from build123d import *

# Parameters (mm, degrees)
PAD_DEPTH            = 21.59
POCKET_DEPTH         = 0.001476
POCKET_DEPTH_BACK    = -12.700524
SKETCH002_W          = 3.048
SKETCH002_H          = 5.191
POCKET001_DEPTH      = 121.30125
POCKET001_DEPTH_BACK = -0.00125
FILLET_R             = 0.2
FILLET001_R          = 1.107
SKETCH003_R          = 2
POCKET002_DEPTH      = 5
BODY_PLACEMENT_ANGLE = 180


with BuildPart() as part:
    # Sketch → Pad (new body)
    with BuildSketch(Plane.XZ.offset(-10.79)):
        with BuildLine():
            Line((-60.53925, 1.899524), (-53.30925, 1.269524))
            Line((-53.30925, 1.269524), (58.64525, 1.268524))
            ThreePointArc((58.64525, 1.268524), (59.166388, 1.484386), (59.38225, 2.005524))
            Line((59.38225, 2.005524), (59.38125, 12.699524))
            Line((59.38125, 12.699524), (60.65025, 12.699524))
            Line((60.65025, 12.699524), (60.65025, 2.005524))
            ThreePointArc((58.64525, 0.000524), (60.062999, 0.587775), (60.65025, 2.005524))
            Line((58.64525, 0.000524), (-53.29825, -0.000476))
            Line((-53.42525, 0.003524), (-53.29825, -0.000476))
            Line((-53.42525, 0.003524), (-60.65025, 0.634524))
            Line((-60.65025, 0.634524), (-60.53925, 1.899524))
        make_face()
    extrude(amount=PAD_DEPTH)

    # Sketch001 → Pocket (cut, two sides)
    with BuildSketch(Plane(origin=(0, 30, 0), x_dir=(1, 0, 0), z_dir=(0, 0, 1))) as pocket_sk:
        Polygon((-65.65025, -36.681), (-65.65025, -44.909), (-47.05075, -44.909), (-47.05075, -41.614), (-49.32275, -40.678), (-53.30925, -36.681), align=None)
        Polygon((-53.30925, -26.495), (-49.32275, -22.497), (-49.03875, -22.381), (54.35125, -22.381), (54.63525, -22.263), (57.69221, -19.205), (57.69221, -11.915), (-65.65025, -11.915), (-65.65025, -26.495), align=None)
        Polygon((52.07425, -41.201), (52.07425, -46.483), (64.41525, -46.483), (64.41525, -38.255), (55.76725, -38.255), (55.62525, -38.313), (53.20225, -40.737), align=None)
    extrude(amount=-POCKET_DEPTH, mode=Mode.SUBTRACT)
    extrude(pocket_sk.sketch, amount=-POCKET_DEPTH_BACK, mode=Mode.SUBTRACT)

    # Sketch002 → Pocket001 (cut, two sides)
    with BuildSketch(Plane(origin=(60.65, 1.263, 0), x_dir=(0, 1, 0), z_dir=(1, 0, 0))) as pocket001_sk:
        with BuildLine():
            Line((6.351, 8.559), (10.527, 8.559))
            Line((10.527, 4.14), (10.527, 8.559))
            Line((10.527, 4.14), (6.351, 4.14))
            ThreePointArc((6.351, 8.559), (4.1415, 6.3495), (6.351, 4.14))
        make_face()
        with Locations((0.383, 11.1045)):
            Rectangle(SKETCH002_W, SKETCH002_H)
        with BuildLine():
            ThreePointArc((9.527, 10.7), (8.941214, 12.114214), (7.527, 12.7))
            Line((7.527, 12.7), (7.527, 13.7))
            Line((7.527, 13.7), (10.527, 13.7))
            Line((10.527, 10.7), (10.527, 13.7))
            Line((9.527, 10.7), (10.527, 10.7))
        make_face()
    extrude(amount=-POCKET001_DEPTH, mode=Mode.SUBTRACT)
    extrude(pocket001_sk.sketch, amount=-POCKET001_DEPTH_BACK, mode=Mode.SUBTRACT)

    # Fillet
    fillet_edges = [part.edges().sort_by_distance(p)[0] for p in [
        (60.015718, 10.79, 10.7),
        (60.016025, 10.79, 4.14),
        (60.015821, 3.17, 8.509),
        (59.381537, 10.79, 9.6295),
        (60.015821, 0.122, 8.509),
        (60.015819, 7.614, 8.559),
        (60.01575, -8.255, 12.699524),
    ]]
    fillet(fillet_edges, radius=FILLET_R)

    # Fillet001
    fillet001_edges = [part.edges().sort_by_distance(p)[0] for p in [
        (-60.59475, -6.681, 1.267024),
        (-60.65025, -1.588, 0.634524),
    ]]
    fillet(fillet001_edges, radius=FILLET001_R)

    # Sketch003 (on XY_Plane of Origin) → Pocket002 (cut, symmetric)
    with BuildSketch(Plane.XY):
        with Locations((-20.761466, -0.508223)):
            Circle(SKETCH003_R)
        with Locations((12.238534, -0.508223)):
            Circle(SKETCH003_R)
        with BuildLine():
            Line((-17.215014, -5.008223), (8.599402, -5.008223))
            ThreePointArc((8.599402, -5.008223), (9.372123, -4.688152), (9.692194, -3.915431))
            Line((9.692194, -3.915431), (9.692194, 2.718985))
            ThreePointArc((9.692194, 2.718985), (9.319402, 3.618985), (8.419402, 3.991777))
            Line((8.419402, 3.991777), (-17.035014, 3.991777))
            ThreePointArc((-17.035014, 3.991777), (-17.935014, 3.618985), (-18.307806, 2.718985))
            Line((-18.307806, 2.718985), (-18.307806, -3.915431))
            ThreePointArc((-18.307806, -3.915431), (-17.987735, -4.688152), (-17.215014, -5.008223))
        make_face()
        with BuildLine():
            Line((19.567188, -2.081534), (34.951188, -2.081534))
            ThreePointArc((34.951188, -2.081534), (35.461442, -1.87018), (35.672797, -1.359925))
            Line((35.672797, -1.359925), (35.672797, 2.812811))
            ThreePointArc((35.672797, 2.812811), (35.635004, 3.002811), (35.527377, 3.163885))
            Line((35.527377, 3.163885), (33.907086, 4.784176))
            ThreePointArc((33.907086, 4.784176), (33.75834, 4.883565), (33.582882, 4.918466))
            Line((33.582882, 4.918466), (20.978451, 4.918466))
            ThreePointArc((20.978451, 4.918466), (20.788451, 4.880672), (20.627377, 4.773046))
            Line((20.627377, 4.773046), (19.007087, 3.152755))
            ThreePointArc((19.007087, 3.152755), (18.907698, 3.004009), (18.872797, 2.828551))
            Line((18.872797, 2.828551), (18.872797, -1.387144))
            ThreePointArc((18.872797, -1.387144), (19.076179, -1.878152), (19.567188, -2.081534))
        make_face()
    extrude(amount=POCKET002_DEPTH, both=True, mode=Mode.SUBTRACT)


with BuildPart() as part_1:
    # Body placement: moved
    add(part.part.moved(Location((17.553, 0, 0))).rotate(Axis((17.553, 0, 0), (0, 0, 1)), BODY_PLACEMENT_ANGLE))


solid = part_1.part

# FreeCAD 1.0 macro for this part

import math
import FreeCAD as App
import Part
import Sketcher
Q = App.Units.Quantity


def edges_at(feature, points):
    """Names of the edges that pass closest to the given points."""
    edges = feature.Shape.Edges
    near = lambda p: min(range(len(edges)), key=lambda i: edges[i].distToShape(Part.Vertex(*p))[0])
    return sorted({f"Edge{near(p) + 1}" for p in points})

doc = App.newDocument("Part")
body = doc.addObject("PartDesign::Body", "Body")

sketch1 = doc.addObject("Sketcher::SketchObject", "Sketch")
body.addObject(sketch1)
sketch1.AttachmentSupport = (doc.XZ_Plane, [""])
sketch1.MapMode = "FlatFace"
sketch1.AttachmentOffset = App.Placement(App.Vector(0, 0, -10.79), App.Rotation())
sketch1.addGeometry(Part.LineSegment(App.Vector(-53.31, 1.27, 0), App.Vector(-60.54, 1.9, 0)), False)
sketch1.addGeometry(Part.LineSegment(App.Vector(-60.54, 1.9, 0), App.Vector(-60.65, 0.63, 0)), False)
sketch1.addGeometry(Part.LineSegment(App.Vector(-60.65, 0.63, 0), App.Vector(-53.43, 0, 0)), False)
sketch1.addGeometry(Part.LineSegment(App.Vector(-53.43, 0, 0), App.Vector(-53.3, 0, 0)), False)
sketch1.addGeometry(Part.LineSegment(App.Vector(-53.3, 0, 0), App.Vector(58.65, 0, 0)), False)
sketch1.addGeometry(Part.ArcOfCircle(Part.Circle(App.Vector(58.65, 2.01, 0), App.Vector(0, 0, 1), 2.01), math.radians(-90), math.radians(0)), False)
sketch1.addGeometry(Part.LineSegment(App.Vector(60.65, 2.01, 0), App.Vector(60.65, 12.7, 0)), False)
sketch1.addGeometry(Part.LineSegment(App.Vector(60.65, 12.7, 0), App.Vector(59.38, 12.7, 0)), False)
sketch1.addGeometry(Part.LineSegment(App.Vector(59.38, 12.7, 0), App.Vector(59.38, 2.01, 0)), False)
sketch1.addGeometry(Part.ArcOfCircle(Part.Circle(App.Vector(58.65, 2.01, 0), App.Vector(0, 0, 1), 0.74), math.radians(-90), math.radians(0)), False)
sketch1.addGeometry(Part.LineSegment(App.Vector(58.65, 1.27, 0), App.Vector(-53.31, 1.27, 0)), False)
sketch1.addConstraint(Sketcher.Constraint("Coincident", 0, 2, 1, 1))
sketch1.addConstraint(Sketcher.Constraint("Coincident", 1, 2, 2, 1))
sketch1.addConstraint(Sketcher.Constraint("Coincident", 2, 2, 3, 1))
sketch1.addConstraint(Sketcher.Constraint("Coincident", 3, 2, 4, 1))
sketch1.addConstraint(Sketcher.Constraint("Coincident", 4, 2, 5, 1))
sketch1.addConstraint(Sketcher.Constraint("Tangent", 5, 2, 6, 1))
sketch1.addConstraint(Sketcher.Constraint("Coincident", 6, 2, 7, 1))
sketch1.addConstraint(Sketcher.Constraint("Coincident", 7, 2, 8, 1))
sketch1.addConstraint(Sketcher.Constraint("Coincident", 8, 2, 9, 2))
sketch1.addConstraint(Sketcher.Constraint("Coincident", 9, 1, 10, 1))
sketch1.addConstraint(Sketcher.Constraint("Coincident", 10, 2, 0, 1))
sketch1.addConstraint(Sketcher.Constraint("Vertical", 6))
sketch1.addConstraint(Sketcher.Constraint("Horizontal", 7))
sketch1.addConstraint(Sketcher.Constraint("Coincident", 9, 3, 5, 3))
sketch1.addConstraint(Sketcher.Constraint("Horizontal", 5, 2, 8, 2))
sketch1.addConstraint(Sketcher.Constraint("Vertical", 9, 3, 4, 2))
sketch1.addConstraint(Sketcher.Constraint("Vertical", 4, 2, 9, 1))
sketch1.addConstraint(Sketcher.Constraint("Radius", 5, 2.005))
sketch1.addConstraint(Sketcher.Constraint("Radius", 9, 0.736999))
sketch1.addConstraint(Sketcher.Constraint("Angle", 0, Q("175.02 deg")))
sketch1.addConstraint(Sketcher.Constraint("DistanceY", 3, 2, 0, 2, 1.9))
sketch1.addConstraint(Sketcher.Constraint("DistanceY", 3, 2, 6, 2, 12.7))
sketch1.addConstraint(Sketcher.Constraint("DistanceX", 7, 2, 7, 1, 1.269))
sketch1.addConstraint(Sketcher.Constraint("DistanceY", 6, 1, 6, 2, 10.694))
sketch1.addConstraint(Sketcher.Constraint("DistanceY", 3, 2, 10, 2, 1.27))
sketch1.addConstraint(Sketcher.Constraint("DistanceX", 1, 2, 0, 2, 0.111))
sketch1.addConstraint(Sketcher.Constraint("DistanceY", 1, 2, 0, 2, 1.265))
sketch1.addConstraint(Sketcher.Constraint("DistanceX", 1, 2, 2, 2, 7.225))
sketch1.addConstraint(Sketcher.Constraint("DistanceY", 2, 2, 1, 2, 0.631))
sketch1.addConstraint(Sketcher.Constraint("DistanceX", 2, 2, 3, 2, 0.127))
sketch1.addConstraint(Sketcher.Constraint("Distance", 4, 111.9435))
sketch1.addConstraint(Sketcher.Constraint("DistanceX", -1, 1, 5, 3, 58.64525))
sketch1.addConstraint(Sketcher.Constraint("DistanceY", -1, 1, 5, 3, 2.005524))
pad1 = doc.addObject("PartDesign::Pad", "Pad")
body.addObject(pad1)
pad1.Profile = sketch1
pad1.Length = 21.59

sketch2 = doc.addObject("Sketcher::SketchObject", "Sketch001")
body.addObject(sketch2)
sketch2.AttachmentSupport = (doc.XY_Plane, [""])
sketch2.MapMode = "FlatFace"
sketch2.addGeometry(Part.LineSegment(App.Vector(-65.65, -6.68, 0), App.Vector(-65.65, -14.91, 0)), False)
sketch2.addGeometry(Part.LineSegment(App.Vector(-65.65, -14.91, 0), App.Vector(-47.05, -14.91, 0)), False)
sketch2.addGeometry(Part.LineSegment(App.Vector(-47.05, -14.91, 0), App.Vector(-47.05, -11.61, 0)), False)
sketch2.addGeometry(Part.LineSegment(App.Vector(-47.05, -11.61, 0), App.Vector(-49.32, -10.68, 0)), False)
sketch2.addGeometry(Part.LineSegment(App.Vector(-49.32, -10.68, 0), App.Vector(-53.31, -6.68, 0)), False)
sketch2.addGeometry(Part.LineSegment(App.Vector(-53.31, -6.68, 0), App.Vector(-65.65, -6.68, 0)), False)
sketch2.addGeometry(Part.LineSegment(App.Vector(-53.31, 3.5, 0), App.Vector(-49.32, 7.5, 0)), False)
sketch2.addGeometry(Part.LineSegment(App.Vector(-49.32, 7.5, 0), App.Vector(-49.04, 7.62, 0)), False)
sketch2.addGeometry(Part.LineSegment(App.Vector(-49.04, 7.62, 0), App.Vector(54.35, 7.62, 0)), False)
sketch2.addGeometry(Part.LineSegment(App.Vector(54.35, 7.62, 0), App.Vector(54.64, 7.74, 0)), False)
sketch2.addGeometry(Part.LineSegment(App.Vector(54.64, 7.74, 0), App.Vector(57.69, 10.79, 0)), False)
sketch2.addGeometry(Part.LineSegment(App.Vector(57.69, 10.79, 0), App.Vector(57.69, 18.09, 0)), False)
sketch2.addGeometry(Part.LineSegment(App.Vector(57.69, 18.09, 0), App.Vector(-65.65, 18.09, 0)), False)
sketch2.addGeometry(Part.LineSegment(App.Vector(-65.65, 18.09, 0), App.Vector(-65.65, 3.5, 0)), False)
sketch2.addGeometry(Part.LineSegment(App.Vector(-65.65, 3.5, 0), App.Vector(-53.31, 3.5, 0)), False)
sketch2.addGeometry(Part.LineSegment(App.Vector(52.07, -11.2, 0), App.Vector(52.07, -16.48, 0)), False)
sketch2.addGeometry(Part.LineSegment(App.Vector(52.07, -16.48, 0), App.Vector(64.42, -16.48, 0)), False)
sketch2.addGeometry(Part.LineSegment(App.Vector(64.42, -16.48, 0), App.Vector(64.42, -8.26, 0)), False)
sketch2.addGeometry(Part.LineSegment(App.Vector(64.42, -8.26, 0), App.Vector(55.77, -8.26, 0)), False)
sketch2.addGeometry(Part.LineSegment(App.Vector(55.77, -8.26, 0), App.Vector(55.63, -8.31, 0)), False)
sketch2.addGeometry(Part.LineSegment(App.Vector(55.63, -8.31, 0), App.Vector(53.2, -10.74, 0)), False)
sketch2.addGeometry(Part.LineSegment(App.Vector(53.2, -10.74, 0), App.Vector(52.07, -11.2, 0)), False)
sketch2.addConstraint(Sketcher.Constraint("Coincident", 0, 2, 1, 1))
sketch2.addConstraint(Sketcher.Constraint("Coincident", 1, 2, 2, 1))
sketch2.addConstraint(Sketcher.Constraint("Coincident", 2, 2, 3, 1))
sketch2.addConstraint(Sketcher.Constraint("Coincident", 3, 2, 4, 1))
sketch2.addConstraint(Sketcher.Constraint("Coincident", 4, 2, 5, 1))
sketch2.addConstraint(Sketcher.Constraint("Coincident", 5, 2, 0, 1))
sketch2.addConstraint(Sketcher.Constraint("Coincident", 6, 2, 7, 1))
sketch2.addConstraint(Sketcher.Constraint("Coincident", 7, 2, 8, 1))
sketch2.addConstraint(Sketcher.Constraint("Coincident", 8, 2, 9, 1))
sketch2.addConstraint(Sketcher.Constraint("Coincident", 9, 2, 10, 1))
sketch2.addConstraint(Sketcher.Constraint("Coincident", 10, 2, 11, 1))
sketch2.addConstraint(Sketcher.Constraint("Coincident", 11, 2, 12, 1))
sketch2.addConstraint(Sketcher.Constraint("Coincident", 12, 2, 13, 1))
sketch2.addConstraint(Sketcher.Constraint("Coincident", 13, 2, 14, 1))
sketch2.addConstraint(Sketcher.Constraint("Coincident", 14, 2, 6, 1))
sketch2.addConstraint(Sketcher.Constraint("Coincident", 15, 2, 16, 1))
sketch2.addConstraint(Sketcher.Constraint("Coincident", 16, 2, 17, 1))
sketch2.addConstraint(Sketcher.Constraint("Coincident", 17, 2, 18, 1))
sketch2.addConstraint(Sketcher.Constraint("Coincident", 18, 2, 19, 1))
sketch2.addConstraint(Sketcher.Constraint("Coincident", 19, 2, 20, 1))
sketch2.addConstraint(Sketcher.Constraint("Coincident", 20, 2, 21, 1))
sketch2.addConstraint(Sketcher.Constraint("Coincident", 21, 2, 15, 1))
sketch2.addConstraint(Sketcher.Constraint("Vertical", 0))
sketch2.addConstraint(Sketcher.Constraint("Horizontal", 1))
sketch2.addConstraint(Sketcher.Constraint("Vertical", 2))
sketch2.addConstraint(Sketcher.Constraint("Horizontal", 5))
sketch2.addConstraint(Sketcher.Constraint("Horizontal", 8))
sketch2.addConstraint(Sketcher.Constraint("Vertical", 11))
sketch2.addConstraint(Sketcher.Constraint("Horizontal", 12))
sketch2.addConstraint(Sketcher.Constraint("Vertical", 13))
sketch2.addConstraint(Sketcher.Constraint("Horizontal", 14))
sketch2.addConstraint(Sketcher.Constraint("Vertical", 15))
sketch2.addConstraint(Sketcher.Constraint("Horizontal", 16))
sketch2.addConstraint(Sketcher.Constraint("Vertical", 17))
sketch2.addConstraint(Sketcher.Constraint("Horizontal", 18))
sketch2.addConstraint(Sketcher.Constraint("Parallel", 7, 19))
sketch2.addConstraint(Sketcher.Constraint("Vertical", 3, 2, 6, 2))
sketch2.addConstraint(Sketcher.Constraint("Vertical", 5, 2, 12, 2))
sketch2.addConstraint(Sketcher.Constraint("Vertical", 4, 2, 14, 2))
sketch2.addConstraint(Sketcher.Constraint("Equal", 14, 16))
sketch2.addConstraint(Sketcher.Constraint("Equal", 0, 17))
sketch2.addConstraint(Sketcher.Constraint("DistanceX", 8, 1, 8, 2, 103.39))
sketch2.addConstraint(Sketcher.Constraint("DistanceY", 11, 1, 11, 2, 7.29))
sketch2.addConstraint(Sketcher.Constraint("DistanceY", 13, 2, 13, 1, 14.58))
sketch2.addConstraint(Sketcher.Constraint("DistanceY", 4, 2, 7, 2, 14.3))
sketch2.addConstraint(Sketcher.Constraint("DistanceX", 5, 2, 5, 1, 12.341))
sketch2.addConstraint(Sketcher.Constraint("DistanceX", 18, 2, 18, 1, 8.648))
sketch2.addConstraint(Sketcher.Constraint("DistanceY", 0, 2, 0, 1, 8.228))
sketch2.addConstraint(Sketcher.Constraint("DistanceY", 2, 1, 2, 2, 3.295))
sketch2.addConstraint(Sketcher.Constraint("DistanceY", 15, 2, 15, 1, 5.282))
sketch2.addConstraint(Sketcher.Constraint("DistanceY", 15, 2, 9, 2, 24.22))
sketch2.addConstraint(Sketcher.Constraint("DistanceX", 9, 2, 16, 2, 9.78))
sketch2.addConstraint(Sketcher.Constraint("DistanceY", 17, 2, 10, 2, 19.05))
sketch2.addConstraint(Sketcher.Constraint("DistanceX", 19, 2, 17, 2, 8.79))
sketch2.addConstraint(Sketcher.Constraint("DistanceY", 15, 2, 19, 2, 8.17))
sketch2.addConstraint(Sketcher.Constraint("DistanceX", 1, 1, 1, 2, 18.5995))
sketch2.addConstraint(Sketcher.Constraint("DistanceY", 0, 2, -1, 1, 14.909))
sketch2.addConstraint(Sketcher.Constraint("DistanceY", 3, 2, -1, 1, 10.678))
sketch2.addConstraint(Sketcher.Constraint("DistanceY", -1, 1, 6, 2, 7.503))
sketch2.addConstraint(Sketcher.Constraint("DistanceY", -1, 1, 9, 2, 7.737))
sketch2.addConstraint(Sketcher.Constraint("DistanceY", 20, 2, -1, 1, 10.737))
sketch2.addConstraint(Sketcher.Constraint("DistanceX", 3, 2, 2, 2, 2.272))
sketch2.addConstraint(Sketcher.Constraint("DistanceX", 8, 2, 9, 2, 0.284))
sketch2.addConstraint(Sketcher.Constraint("DistanceX", 20, 2, 19, 2, 2.423))
sketch2.addConstraint(Sketcher.Constraint("DistanceX", 12, 2, 12, 1, 123.34246))
sketch2.addConstraint(Sketcher.Constraint("DistanceX", 0, 2, -1, 1, 65.65025))
pocket1 = doc.addObject("PartDesign::Pocket", "Pocket")
body.addObject(pocket1)
pocket1.Profile = sketch2
pocket1.Type = "ThroughAll"
pocket1.Midplane = True

sketch3 = doc.addObject("Sketcher::SketchObject", "Sketch002")
body.addObject(sketch3)
sketch3.AttachmentSupport = (doc.YZ_Plane, [""])
sketch3.MapMode = "FlatFace"
sketch3.AttachmentOffset = App.Placement(App.Vector(0, 0, 60.65), App.Rotation())
sketch3.addGeometry(Part.LineSegment(App.Vector(11.8, 8.6, 0), App.Vector(7.6, 8.6, 0)), False)
sketch3.addGeometry(Part.ArcOfCircle(Part.Circle(App.Vector(7.6, 6.3, 0), App.Vector(0, 0, 1), 2.2), math.radians(90), math.radians(270)), False)
sketch3.addGeometry(Part.LineSegment(App.Vector(7.6, 4.1, 0), App.Vector(11.8, 4.1, 0)), False)
sketch3.addGeometry(Part.LineSegment(App.Vector(11.8, 4.1, 0), App.Vector(11.8, 8.6, 0)), False)
sketch3.addGeometry(Part.LineSegment(App.Vector(0.1, 13.7, 0), App.Vector(0.1, 8.5, 0)), False)
sketch3.addGeometry(Part.LineSegment(App.Vector(0.1, 8.5, 0), App.Vector(3.2, 8.5, 0)), False)
sketch3.addGeometry(Part.LineSegment(App.Vector(3.2, 8.5, 0), App.Vector(3.2, 13.7, 0)), False)
sketch3.addGeometry(Part.LineSegment(App.Vector(3.2, 13.7, 0), App.Vector(0.1, 13.7, 0)), False)
sketch3.addGeometry(Part.ArcOfCircle(Part.Circle(App.Vector(8.8, 10.7, 0), App.Vector(0, 0, 1), 2), math.radians(0), math.radians(90)), False)
sketch3.addGeometry(Part.LineSegment(App.Vector(10.8, 10.7, 0), App.Vector(11.8, 10.7, 0)), False)
sketch3.addGeometry(Part.LineSegment(App.Vector(11.8, 10.7, 0), App.Vector(11.8, 13.7, 0)), False)
sketch3.addGeometry(Part.LineSegment(App.Vector(11.8, 13.7, 0), App.Vector(8.8, 13.7, 0)), False)
sketch3.addGeometry(Part.LineSegment(App.Vector(8.8, 13.7, 0), App.Vector(8.8, 12.7, 0)), False)
sketch3.addConstraint(Sketcher.Constraint("Tangent", 0, 2, 1, 1))
sketch3.addConstraint(Sketcher.Constraint("Tangent", 1, 2, 2, 1))
sketch3.addConstraint(Sketcher.Constraint("Coincident", 2, 2, 3, 1))
sketch3.addConstraint(Sketcher.Constraint("Coincident", 3, 2, 0, 1))
sketch3.addConstraint(Sketcher.Constraint("Coincident", 4, 2, 5, 1))
sketch3.addConstraint(Sketcher.Constraint("Coincident", 5, 2, 6, 1))
sketch3.addConstraint(Sketcher.Constraint("Coincident", 6, 2, 7, 1))
sketch3.addConstraint(Sketcher.Constraint("Coincident", 7, 2, 4, 1))
sketch3.addConstraint(Sketcher.Constraint("Coincident", 8, 1, 9, 1))
sketch3.addConstraint(Sketcher.Constraint("Coincident", 9, 2, 10, 1))
sketch3.addConstraint(Sketcher.Constraint("Coincident", 10, 2, 11, 1))
sketch3.addConstraint(Sketcher.Constraint("Coincident", 11, 2, 12, 1))
sketch3.addConstraint(Sketcher.Constraint("Coincident", 12, 2, 8, 2))
sketch3.addConstraint(Sketcher.Constraint("Horizontal", 0))
sketch3.addConstraint(Sketcher.Constraint("Horizontal", 2))
sketch3.addConstraint(Sketcher.Constraint("Vertical", 3))
sketch3.addConstraint(Sketcher.Constraint("Vertical", 4))
sketch3.addConstraint(Sketcher.Constraint("Horizontal", 5))
sketch3.addConstraint(Sketcher.Constraint("Vertical", 6))
sketch3.addConstraint(Sketcher.Constraint("Horizontal", 7))
sketch3.addConstraint(Sketcher.Constraint("Horizontal", 9))
sketch3.addConstraint(Sketcher.Constraint("Vertical", 10))
sketch3.addConstraint(Sketcher.Constraint("Horizontal", 11))
sketch3.addConstraint(Sketcher.Constraint("Vertical", 12))
sketch3.addConstraint(Sketcher.Constraint("Horizontal", 7, 2, 10, 2))
sketch3.addConstraint(Sketcher.Constraint("Vertical", 3, 2, 9, 2))
sketch3.addConstraint(Sketcher.Constraint("Vertical", 8, 3, 11, 2))
sketch3.addConstraint(Sketcher.Constraint("Equal", 11, 10))
sketch3.addConstraint(Sketcher.Constraint("Equal", 9, 12))
sketch3.addConstraint(Sketcher.Constraint("Radius", 8, 1.999999))
sketch3.addConstraint(Sketcher.Constraint("DistanceX", 9, 1, 9, 2, 1.0))
sketch3.addConstraint(Sketcher.Constraint("DistanceY", -1, 1, 8, 3, 10.700001))
sketch3.addConstraint(Sketcher.Constraint("Radius", 1, 2.2095))
sketch3.addConstraint(Sketcher.Constraint("DistanceX", 0, 2, 0, 1, 4.176))
sketch3.addConstraint(Sketcher.Constraint("DistanceX", 5, 1, 5, 2, 3.048))
sketch3.addConstraint(Sketcher.Constraint("DistanceY", 4, 2, 4, 1, 5.191))
sketch3.addConstraint(Sketcher.Constraint("DistanceX", -1, 1, 8, 3, 8.790001))
sketch3.addConstraint(Sketcher.Constraint("DistanceY", -1, 1, 1, 2, 4.14))
sketch3.addConstraint(Sketcher.Constraint("DistanceX", -1, 1, 5, 2, 3.17))
pocket2 = doc.addObject("PartDesign::Pocket", "Pocket001")
body.addObject(pocket2)
pocket2.Profile = sketch3
pocket2.Type = "ThroughAll"
pocket2.Midplane = True
doc.recompute()

fillet = doc.addObject("PartDesign::Fillet", "Fillet")
body.addObject(fillet)
fillet.Base = (pocket2, edges_at(pocket2, [
    (60.016, 10.79, 10.7),
    (60.016, 10.79, 4.14),
    (60.016, 3.17, 8.509),
    (59.382, 10.79, 9.63),
    (60.016, 0.122, 8.509),
    (60.016, 7.614, 8.559),
    (60.016, -8.255, 12.7),
]))
fillet.Radius = 0.2
doc.recompute()

fillet2 = doc.addObject("PartDesign::Fillet", "Fillet001")
body.addObject(fillet2)
fillet2.Base = (fillet, edges_at(fillet, [(-60.595, -6.681, 1.267), (-60.65, -1.588, 0.635)]))
fillet2.Radius = 1.107

sketch4 = doc.addObject("Sketcher::SketchObject", "Sketch003")
body.addObject(sketch4)
sketch4.AttachmentSupport = (doc.XY_Plane, [""])
sketch4.MapMode = "FlatFace"
sketch4.addGeometry(Part.Circle(App.Vector(-20.76, -0.51, 0), App.Vector(0, 0, 1), 2), False)
sketch4.addGeometry(Part.Circle(App.Vector(12.24, -0.51, 0), App.Vector(0, 0, 1), 2), False)
sketch4.addGeometry(Part.LineSegment(App.Vector(-17.22, -5.01, 0), App.Vector(8.6, -5.01, 0)), False)
sketch4.addGeometry(Part.ArcOfCircle(Part.Circle(App.Vector(8.6, -3.92, 0), App.Vector(0, 0, 1), 1.09), math.radians(-90), math.radians(0)), False)
sketch4.addGeometry(Part.LineSegment(App.Vector(9.69, -3.92, 0), App.Vector(9.69, 2.72, 0)), False)
sketch4.addGeometry(Part.ArcOfCircle(Part.Circle(App.Vector(8.42, 2.72, 0), App.Vector(0, 0, 1), 1.27), math.radians(0), math.radians(90)), False)
sketch4.addGeometry(Part.LineSegment(App.Vector(8.42, 3.99, 0), App.Vector(-17.04, 3.99, 0)), False)
sketch4.addGeometry(Part.ArcOfCircle(Part.Circle(App.Vector(-17.04, 2.72, 0), App.Vector(0, 0, 1), 1.27), math.radians(90), math.radians(180)), False)
sketch4.addGeometry(Part.LineSegment(App.Vector(-18.31, 2.72, 0), App.Vector(-18.31, -3.92, 0)), False)
sketch4.addGeometry(Part.ArcOfCircle(Part.Circle(App.Vector(-17.22, -3.92, 0), App.Vector(0, 0, 1), 1.09), math.radians(180), math.radians(270)), False)
sketch4.addGeometry(Part.LineSegment(App.Vector(19.57, -2.08, 0), App.Vector(34.95, -2.08, 0)), False)
sketch4.addGeometry(Part.ArcOfCircle(Part.Circle(App.Vector(34.95, -1.36, 0), App.Vector(0, 0, 1), 0.72), math.radians(-90), math.radians(0)), False)
sketch4.addGeometry(Part.LineSegment(App.Vector(35.67, -1.36, 0), App.Vector(35.67, 2.81, 0)), False)
sketch4.addGeometry(Part.ArcOfCircle(Part.Circle(App.Vector(35.18, 2.81, 0), App.Vector(0, 0, 1), 0.5), math.radians(0), math.radians(45)), False)
sketch4.addGeometry(Part.LineSegment(App.Vector(35.53, 3.16, 0), App.Vector(33.91, 4.78, 0)), False)
sketch4.addGeometry(Part.ArcOfCircle(Part.Circle(App.Vector(33.58, 4.46, 0), App.Vector(0, 0, 1), 0.46), math.radians(45), math.radians(90)), False)
sketch4.addGeometry(Part.LineSegment(App.Vector(33.58, 4.92, 0), App.Vector(20.98, 4.92, 0)), False)
sketch4.addGeometry(Part.ArcOfCircle(Part.Circle(App.Vector(20.98, 4.42, 0), App.Vector(0, 0, 1), 0.5), math.radians(90), math.radians(135)), False)
sketch4.addGeometry(Part.LineSegment(App.Vector(20.63, 4.77, 0), App.Vector(19.01, 3.15, 0)), False)
sketch4.addGeometry(Part.ArcOfCircle(Part.Circle(App.Vector(19.33, 2.83, 0), App.Vector(0, 0, 1), 0.46), math.radians(135), math.radians(180)), False)
sketch4.addGeometry(Part.LineSegment(App.Vector(18.87, 2.83, 0), App.Vector(18.87, -1.39, 0)), False)
sketch4.addGeometry(Part.ArcOfCircle(Part.Circle(App.Vector(19.57, -1.39, 0), App.Vector(0, 0, 1), 0.69), math.radians(180), math.radians(270)), False)
sketch4.addConstraint(Sketcher.Constraint("Tangent", 2, 2, 3, 1))
sketch4.addConstraint(Sketcher.Constraint("Tangent", 3, 2, 4, 1))
sketch4.addConstraint(Sketcher.Constraint("Tangent", 4, 2, 5, 1))
sketch4.addConstraint(Sketcher.Constraint("Tangent", 5, 2, 6, 1))
sketch4.addConstraint(Sketcher.Constraint("Tangent", 6, 2, 7, 1))
sketch4.addConstraint(Sketcher.Constraint("Tangent", 7, 2, 8, 1))
sketch4.addConstraint(Sketcher.Constraint("Tangent", 8, 2, 9, 1))
sketch4.addConstraint(Sketcher.Constraint("Tangent", 9, 2, 2, 1))
sketch4.addConstraint(Sketcher.Constraint("Tangent", 10, 2, 11, 1))
sketch4.addConstraint(Sketcher.Constraint("Tangent", 11, 2, 12, 1))
sketch4.addConstraint(Sketcher.Constraint("Coincident", 12, 2, 13, 1))
sketch4.addConstraint(Sketcher.Constraint("Coincident", 13, 2, 14, 1))
sketch4.addConstraint(Sketcher.Constraint("Tangent", 14, 2, 15, 1))
sketch4.addConstraint(Sketcher.Constraint("Tangent", 15, 2, 16, 1))
sketch4.addConstraint(Sketcher.Constraint("Coincident", 16, 2, 17, 1))
sketch4.addConstraint(Sketcher.Constraint("Coincident", 17, 2, 18, 1))
sketch4.addConstraint(Sketcher.Constraint("Tangent", 18, 2, 19, 1))
sketch4.addConstraint(Sketcher.Constraint("Tangent", 19, 2, 20, 1))
sketch4.addConstraint(Sketcher.Constraint("Tangent", 20, 2, 21, 1))
sketch4.addConstraint(Sketcher.Constraint("Coincident", 21, 2, 10, 1))
sketch4.addConstraint(Sketcher.Constraint("Horizontal", 2))
sketch4.addConstraint(Sketcher.Constraint("Vertical", 4))
sketch4.addConstraint(Sketcher.Constraint("Horizontal", 6))
sketch4.addConstraint(Sketcher.Constraint("Vertical", 8))
sketch4.addConstraint(Sketcher.Constraint("Horizontal", 10))
sketch4.addConstraint(Sketcher.Constraint("Vertical", 12))
sketch4.addConstraint(Sketcher.Constraint("Horizontal", 16))
sketch4.addConstraint(Sketcher.Constraint("Vertical", 20))
sketch4.addConstraint(Sketcher.Constraint("Equal", 0, 1))
sketch4.addConstraint(Sketcher.Constraint("Equal", 5, 7))
sketch4.addConstraint(Sketcher.Constraint("Equal", 3, 9))
sketch4.addConstraint(Sketcher.Constraint("Equal", 15, 19))
sketch4.addConstraint(Sketcher.Constraint("Perpendicular", 14, 18))
sketch4.addConstraint(Sketcher.Constraint("Horizontal", 0, 3, 1, 3))
sketch4.addConstraint(Sketcher.Constraint("Equal", 14, 18))
sketch4.addConstraint(Sketcher.Constraint("Diameter", 0, 4.0))
sketch4.addConstraint(Sketcher.Constraint("Angle", 14, Q("135 deg")))
sketch4.addConstraint(Sketcher.Constraint("DistanceX", 0, 3, 1, 3, 33.0))
sketch4.addConstraint(Sketcher.Constraint("Radius", 17, 0.496499))
sketch4.addConstraint(Sketcher.Constraint("DistanceY", 2, 2, 1, 3, 4.5))
sketch4.addConstraint(Sketcher.Constraint("DistanceY", 1, 3, 5, 2, 4.5))
sketch4.addConstraint(Sketcher.Constraint("DistanceX", 10, 1, 10, 2, 15.384))
sketch4.addConstraint(Sketcher.Constraint("Radius", 3, 1.092791))
sketch4.addConstraint(Sketcher.Constraint("Radius", 5, 1.272792))
sketch4.addConstraint(Sketcher.Constraint("Radius", 11, 0.721609))
sketch4.addConstraint(Sketcher.Constraint("Radius", 21, 0.69439))
sketch4.addConstraint(Sketcher.Constraint("Radius", 13, 0.496488))
sketch4.addConstraint(Sketcher.Constraint("Radius", 15, 0.458495))
sketch4.addConstraint(Sketcher.Constraint("DistanceX", 21, 3, 10, 2, 15.384001))
sketch4.addConstraint(Sketcher.Constraint("DistanceX", 16, 2, 16, 1, 12.604431))
sketch4.addConstraint(Sketcher.Constraint("DistanceY", 11, 3, 1, 3, 0.851702))
sketch4.addConstraint(Sketcher.Constraint("DistanceY", 3, 3, 17, 3, 8.337399))
sketch4.addConstraint(Sketcher.Constraint("DistanceX", 14, 2, 11, 3, 1.044102))
sketch4.addConstraint(Sketcher.Constraint("DistanceY", 21, 3, 18, 2, 4.539899))
sketch4.addConstraint(Sketcher.Constraint("DistanceX", 2, 1, 2, 2, 25.814416))
sketch4.addConstraint(Sketcher.Constraint("DistanceY", 12, 1, 12, 2, 4.172736))
sketch4.addConstraint(Sketcher.Constraint("DistanceX", -1, 1, 13, 3, 35.176309))
sketch4.addConstraint(Sketcher.Constraint("DistanceY", -1, 1, 15, 3, 4.459971))
sketch4.addConstraint(Sketcher.Constraint("DistanceX", 3, 3, 1, 3, 3.639131))
sketch4.addConstraint(Sketcher.Constraint("DistanceX", 5, 3, 15, 3, 25.163479))
sketch4.addConstraint(Sketcher.Constraint("DistanceX", 13, 2, 12, 2, 0.14542))
pocket3 = doc.addObject("PartDesign::Pocket", "Pocket002")
body.addObject(pocket3)
pocket3.Profile = sketch4
pocket3.Length = 10
pocket3.Midplane = True
body2 = doc.addObject("PartDesign::Body", "Body001")
doc.recompute()

body.Placement = App.Placement(App.Vector(17.553, 0, 0), App.Rotation(App.Vector(0, 0, 1), 180))
boolean = doc.addObject("PartDesign::Boolean", "Boolean")
body2.addObject(boolean)
boolean.Type = "Fuse"
boolean.addObjects([body])

doc.recompute()
